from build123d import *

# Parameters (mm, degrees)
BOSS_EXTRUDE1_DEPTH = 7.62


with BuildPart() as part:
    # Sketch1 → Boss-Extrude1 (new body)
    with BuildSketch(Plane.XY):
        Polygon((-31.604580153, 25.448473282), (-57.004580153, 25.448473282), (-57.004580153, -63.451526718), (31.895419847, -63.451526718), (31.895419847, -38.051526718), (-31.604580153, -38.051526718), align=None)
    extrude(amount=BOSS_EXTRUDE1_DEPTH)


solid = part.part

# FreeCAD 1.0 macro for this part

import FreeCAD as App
import Part
import Sketcher
from FreeCAD import Vector
Q = App.Units.Quantity

doc = App.newDocument("Part")
body = doc.addObject("PartDesign::Body", "Body")

sketch1 = doc.addObject("Sketcher::SketchObject", "Sketch")
body.addObject(sketch1)
sketch1.AttachmentSupport = (doc.XY_Plane, [""])
sketch1.MapMode = "FlatFace"
sketch1.addGeometry([
    Part.LineSegment(Vector(-31.60458, 25.448473, 0), Vector(-57.00458, 25.448473, 0)),
    Part.LineSegment(Vector(-57.00458, 25.448473, 0), Vector(-57.00458, -63.451527, 0)),
    Part.LineSegment(Vector(-57.00458, -63.451527, 0), Vector(31.89542, -63.451527, 0)),
    Part.LineSegment(Vector(31.89542, -63.451527, 0), Vector(31.89542, -38.051527, 0)),
    Part.LineSegment(Vector(31.89542, -38.051527, 0), Vector(-31.60458, -38.051527, 0)),
    Part.LineSegment(Vector(-31.60458, -38.051527, 0), Vector(-31.60458, 25.448473, 0)),
], False)
sketch1.addConstraint([
    Sketcher.Constraint("Coincident", 0, 2, 1, 1),
    Sketcher.Constraint("Coincident", 1, 2, 2, 1),
    Sketcher.Constraint("Coincident", 2, 2, 3, 1),
    Sketcher.Constraint("Coincident", 3, 2, 4, 1),
    Sketcher.Constraint("Coincident", 4, 2, 5, 1),
    Sketcher.Constraint("Coincident", 5, 2, 0, 1),
    Sketcher.Constraint("Horizontal", 0),
    Sketcher.Constraint("Vertical", 1),
    Sketcher.Constraint("Horizontal", 2),
    Sketcher.Constraint("Vertical", 3),
    Sketcher.Constraint("Horizontal", 4),
    Sketcher.Constraint("Vertical", 5),
    Sketcher.Constraint("Equal", 2, 1),
    Sketcher.Constraint("Equal", 0, 3),
    Sketcher.Constraint("DistanceX", 0, 2, 0, 1, Q("1 in")),
    Sketcher.Constraint("DistanceX", 2, 1, 2, 2, Q("3.5 in")),
    Sketcher.Constraint("DistanceX", 0, 2, -1, 1, 57.00458),
    Sketcher.Constraint("DistanceY", -1, 1, 0, 2, 25.448473),
])
pad1 = doc.addObject("PartDesign::Pad", "Pad")
body.addObject(pad1)
pad1.Profile = sketch1
pad1.Length = Q("0.3 in")

doc.recompute()
